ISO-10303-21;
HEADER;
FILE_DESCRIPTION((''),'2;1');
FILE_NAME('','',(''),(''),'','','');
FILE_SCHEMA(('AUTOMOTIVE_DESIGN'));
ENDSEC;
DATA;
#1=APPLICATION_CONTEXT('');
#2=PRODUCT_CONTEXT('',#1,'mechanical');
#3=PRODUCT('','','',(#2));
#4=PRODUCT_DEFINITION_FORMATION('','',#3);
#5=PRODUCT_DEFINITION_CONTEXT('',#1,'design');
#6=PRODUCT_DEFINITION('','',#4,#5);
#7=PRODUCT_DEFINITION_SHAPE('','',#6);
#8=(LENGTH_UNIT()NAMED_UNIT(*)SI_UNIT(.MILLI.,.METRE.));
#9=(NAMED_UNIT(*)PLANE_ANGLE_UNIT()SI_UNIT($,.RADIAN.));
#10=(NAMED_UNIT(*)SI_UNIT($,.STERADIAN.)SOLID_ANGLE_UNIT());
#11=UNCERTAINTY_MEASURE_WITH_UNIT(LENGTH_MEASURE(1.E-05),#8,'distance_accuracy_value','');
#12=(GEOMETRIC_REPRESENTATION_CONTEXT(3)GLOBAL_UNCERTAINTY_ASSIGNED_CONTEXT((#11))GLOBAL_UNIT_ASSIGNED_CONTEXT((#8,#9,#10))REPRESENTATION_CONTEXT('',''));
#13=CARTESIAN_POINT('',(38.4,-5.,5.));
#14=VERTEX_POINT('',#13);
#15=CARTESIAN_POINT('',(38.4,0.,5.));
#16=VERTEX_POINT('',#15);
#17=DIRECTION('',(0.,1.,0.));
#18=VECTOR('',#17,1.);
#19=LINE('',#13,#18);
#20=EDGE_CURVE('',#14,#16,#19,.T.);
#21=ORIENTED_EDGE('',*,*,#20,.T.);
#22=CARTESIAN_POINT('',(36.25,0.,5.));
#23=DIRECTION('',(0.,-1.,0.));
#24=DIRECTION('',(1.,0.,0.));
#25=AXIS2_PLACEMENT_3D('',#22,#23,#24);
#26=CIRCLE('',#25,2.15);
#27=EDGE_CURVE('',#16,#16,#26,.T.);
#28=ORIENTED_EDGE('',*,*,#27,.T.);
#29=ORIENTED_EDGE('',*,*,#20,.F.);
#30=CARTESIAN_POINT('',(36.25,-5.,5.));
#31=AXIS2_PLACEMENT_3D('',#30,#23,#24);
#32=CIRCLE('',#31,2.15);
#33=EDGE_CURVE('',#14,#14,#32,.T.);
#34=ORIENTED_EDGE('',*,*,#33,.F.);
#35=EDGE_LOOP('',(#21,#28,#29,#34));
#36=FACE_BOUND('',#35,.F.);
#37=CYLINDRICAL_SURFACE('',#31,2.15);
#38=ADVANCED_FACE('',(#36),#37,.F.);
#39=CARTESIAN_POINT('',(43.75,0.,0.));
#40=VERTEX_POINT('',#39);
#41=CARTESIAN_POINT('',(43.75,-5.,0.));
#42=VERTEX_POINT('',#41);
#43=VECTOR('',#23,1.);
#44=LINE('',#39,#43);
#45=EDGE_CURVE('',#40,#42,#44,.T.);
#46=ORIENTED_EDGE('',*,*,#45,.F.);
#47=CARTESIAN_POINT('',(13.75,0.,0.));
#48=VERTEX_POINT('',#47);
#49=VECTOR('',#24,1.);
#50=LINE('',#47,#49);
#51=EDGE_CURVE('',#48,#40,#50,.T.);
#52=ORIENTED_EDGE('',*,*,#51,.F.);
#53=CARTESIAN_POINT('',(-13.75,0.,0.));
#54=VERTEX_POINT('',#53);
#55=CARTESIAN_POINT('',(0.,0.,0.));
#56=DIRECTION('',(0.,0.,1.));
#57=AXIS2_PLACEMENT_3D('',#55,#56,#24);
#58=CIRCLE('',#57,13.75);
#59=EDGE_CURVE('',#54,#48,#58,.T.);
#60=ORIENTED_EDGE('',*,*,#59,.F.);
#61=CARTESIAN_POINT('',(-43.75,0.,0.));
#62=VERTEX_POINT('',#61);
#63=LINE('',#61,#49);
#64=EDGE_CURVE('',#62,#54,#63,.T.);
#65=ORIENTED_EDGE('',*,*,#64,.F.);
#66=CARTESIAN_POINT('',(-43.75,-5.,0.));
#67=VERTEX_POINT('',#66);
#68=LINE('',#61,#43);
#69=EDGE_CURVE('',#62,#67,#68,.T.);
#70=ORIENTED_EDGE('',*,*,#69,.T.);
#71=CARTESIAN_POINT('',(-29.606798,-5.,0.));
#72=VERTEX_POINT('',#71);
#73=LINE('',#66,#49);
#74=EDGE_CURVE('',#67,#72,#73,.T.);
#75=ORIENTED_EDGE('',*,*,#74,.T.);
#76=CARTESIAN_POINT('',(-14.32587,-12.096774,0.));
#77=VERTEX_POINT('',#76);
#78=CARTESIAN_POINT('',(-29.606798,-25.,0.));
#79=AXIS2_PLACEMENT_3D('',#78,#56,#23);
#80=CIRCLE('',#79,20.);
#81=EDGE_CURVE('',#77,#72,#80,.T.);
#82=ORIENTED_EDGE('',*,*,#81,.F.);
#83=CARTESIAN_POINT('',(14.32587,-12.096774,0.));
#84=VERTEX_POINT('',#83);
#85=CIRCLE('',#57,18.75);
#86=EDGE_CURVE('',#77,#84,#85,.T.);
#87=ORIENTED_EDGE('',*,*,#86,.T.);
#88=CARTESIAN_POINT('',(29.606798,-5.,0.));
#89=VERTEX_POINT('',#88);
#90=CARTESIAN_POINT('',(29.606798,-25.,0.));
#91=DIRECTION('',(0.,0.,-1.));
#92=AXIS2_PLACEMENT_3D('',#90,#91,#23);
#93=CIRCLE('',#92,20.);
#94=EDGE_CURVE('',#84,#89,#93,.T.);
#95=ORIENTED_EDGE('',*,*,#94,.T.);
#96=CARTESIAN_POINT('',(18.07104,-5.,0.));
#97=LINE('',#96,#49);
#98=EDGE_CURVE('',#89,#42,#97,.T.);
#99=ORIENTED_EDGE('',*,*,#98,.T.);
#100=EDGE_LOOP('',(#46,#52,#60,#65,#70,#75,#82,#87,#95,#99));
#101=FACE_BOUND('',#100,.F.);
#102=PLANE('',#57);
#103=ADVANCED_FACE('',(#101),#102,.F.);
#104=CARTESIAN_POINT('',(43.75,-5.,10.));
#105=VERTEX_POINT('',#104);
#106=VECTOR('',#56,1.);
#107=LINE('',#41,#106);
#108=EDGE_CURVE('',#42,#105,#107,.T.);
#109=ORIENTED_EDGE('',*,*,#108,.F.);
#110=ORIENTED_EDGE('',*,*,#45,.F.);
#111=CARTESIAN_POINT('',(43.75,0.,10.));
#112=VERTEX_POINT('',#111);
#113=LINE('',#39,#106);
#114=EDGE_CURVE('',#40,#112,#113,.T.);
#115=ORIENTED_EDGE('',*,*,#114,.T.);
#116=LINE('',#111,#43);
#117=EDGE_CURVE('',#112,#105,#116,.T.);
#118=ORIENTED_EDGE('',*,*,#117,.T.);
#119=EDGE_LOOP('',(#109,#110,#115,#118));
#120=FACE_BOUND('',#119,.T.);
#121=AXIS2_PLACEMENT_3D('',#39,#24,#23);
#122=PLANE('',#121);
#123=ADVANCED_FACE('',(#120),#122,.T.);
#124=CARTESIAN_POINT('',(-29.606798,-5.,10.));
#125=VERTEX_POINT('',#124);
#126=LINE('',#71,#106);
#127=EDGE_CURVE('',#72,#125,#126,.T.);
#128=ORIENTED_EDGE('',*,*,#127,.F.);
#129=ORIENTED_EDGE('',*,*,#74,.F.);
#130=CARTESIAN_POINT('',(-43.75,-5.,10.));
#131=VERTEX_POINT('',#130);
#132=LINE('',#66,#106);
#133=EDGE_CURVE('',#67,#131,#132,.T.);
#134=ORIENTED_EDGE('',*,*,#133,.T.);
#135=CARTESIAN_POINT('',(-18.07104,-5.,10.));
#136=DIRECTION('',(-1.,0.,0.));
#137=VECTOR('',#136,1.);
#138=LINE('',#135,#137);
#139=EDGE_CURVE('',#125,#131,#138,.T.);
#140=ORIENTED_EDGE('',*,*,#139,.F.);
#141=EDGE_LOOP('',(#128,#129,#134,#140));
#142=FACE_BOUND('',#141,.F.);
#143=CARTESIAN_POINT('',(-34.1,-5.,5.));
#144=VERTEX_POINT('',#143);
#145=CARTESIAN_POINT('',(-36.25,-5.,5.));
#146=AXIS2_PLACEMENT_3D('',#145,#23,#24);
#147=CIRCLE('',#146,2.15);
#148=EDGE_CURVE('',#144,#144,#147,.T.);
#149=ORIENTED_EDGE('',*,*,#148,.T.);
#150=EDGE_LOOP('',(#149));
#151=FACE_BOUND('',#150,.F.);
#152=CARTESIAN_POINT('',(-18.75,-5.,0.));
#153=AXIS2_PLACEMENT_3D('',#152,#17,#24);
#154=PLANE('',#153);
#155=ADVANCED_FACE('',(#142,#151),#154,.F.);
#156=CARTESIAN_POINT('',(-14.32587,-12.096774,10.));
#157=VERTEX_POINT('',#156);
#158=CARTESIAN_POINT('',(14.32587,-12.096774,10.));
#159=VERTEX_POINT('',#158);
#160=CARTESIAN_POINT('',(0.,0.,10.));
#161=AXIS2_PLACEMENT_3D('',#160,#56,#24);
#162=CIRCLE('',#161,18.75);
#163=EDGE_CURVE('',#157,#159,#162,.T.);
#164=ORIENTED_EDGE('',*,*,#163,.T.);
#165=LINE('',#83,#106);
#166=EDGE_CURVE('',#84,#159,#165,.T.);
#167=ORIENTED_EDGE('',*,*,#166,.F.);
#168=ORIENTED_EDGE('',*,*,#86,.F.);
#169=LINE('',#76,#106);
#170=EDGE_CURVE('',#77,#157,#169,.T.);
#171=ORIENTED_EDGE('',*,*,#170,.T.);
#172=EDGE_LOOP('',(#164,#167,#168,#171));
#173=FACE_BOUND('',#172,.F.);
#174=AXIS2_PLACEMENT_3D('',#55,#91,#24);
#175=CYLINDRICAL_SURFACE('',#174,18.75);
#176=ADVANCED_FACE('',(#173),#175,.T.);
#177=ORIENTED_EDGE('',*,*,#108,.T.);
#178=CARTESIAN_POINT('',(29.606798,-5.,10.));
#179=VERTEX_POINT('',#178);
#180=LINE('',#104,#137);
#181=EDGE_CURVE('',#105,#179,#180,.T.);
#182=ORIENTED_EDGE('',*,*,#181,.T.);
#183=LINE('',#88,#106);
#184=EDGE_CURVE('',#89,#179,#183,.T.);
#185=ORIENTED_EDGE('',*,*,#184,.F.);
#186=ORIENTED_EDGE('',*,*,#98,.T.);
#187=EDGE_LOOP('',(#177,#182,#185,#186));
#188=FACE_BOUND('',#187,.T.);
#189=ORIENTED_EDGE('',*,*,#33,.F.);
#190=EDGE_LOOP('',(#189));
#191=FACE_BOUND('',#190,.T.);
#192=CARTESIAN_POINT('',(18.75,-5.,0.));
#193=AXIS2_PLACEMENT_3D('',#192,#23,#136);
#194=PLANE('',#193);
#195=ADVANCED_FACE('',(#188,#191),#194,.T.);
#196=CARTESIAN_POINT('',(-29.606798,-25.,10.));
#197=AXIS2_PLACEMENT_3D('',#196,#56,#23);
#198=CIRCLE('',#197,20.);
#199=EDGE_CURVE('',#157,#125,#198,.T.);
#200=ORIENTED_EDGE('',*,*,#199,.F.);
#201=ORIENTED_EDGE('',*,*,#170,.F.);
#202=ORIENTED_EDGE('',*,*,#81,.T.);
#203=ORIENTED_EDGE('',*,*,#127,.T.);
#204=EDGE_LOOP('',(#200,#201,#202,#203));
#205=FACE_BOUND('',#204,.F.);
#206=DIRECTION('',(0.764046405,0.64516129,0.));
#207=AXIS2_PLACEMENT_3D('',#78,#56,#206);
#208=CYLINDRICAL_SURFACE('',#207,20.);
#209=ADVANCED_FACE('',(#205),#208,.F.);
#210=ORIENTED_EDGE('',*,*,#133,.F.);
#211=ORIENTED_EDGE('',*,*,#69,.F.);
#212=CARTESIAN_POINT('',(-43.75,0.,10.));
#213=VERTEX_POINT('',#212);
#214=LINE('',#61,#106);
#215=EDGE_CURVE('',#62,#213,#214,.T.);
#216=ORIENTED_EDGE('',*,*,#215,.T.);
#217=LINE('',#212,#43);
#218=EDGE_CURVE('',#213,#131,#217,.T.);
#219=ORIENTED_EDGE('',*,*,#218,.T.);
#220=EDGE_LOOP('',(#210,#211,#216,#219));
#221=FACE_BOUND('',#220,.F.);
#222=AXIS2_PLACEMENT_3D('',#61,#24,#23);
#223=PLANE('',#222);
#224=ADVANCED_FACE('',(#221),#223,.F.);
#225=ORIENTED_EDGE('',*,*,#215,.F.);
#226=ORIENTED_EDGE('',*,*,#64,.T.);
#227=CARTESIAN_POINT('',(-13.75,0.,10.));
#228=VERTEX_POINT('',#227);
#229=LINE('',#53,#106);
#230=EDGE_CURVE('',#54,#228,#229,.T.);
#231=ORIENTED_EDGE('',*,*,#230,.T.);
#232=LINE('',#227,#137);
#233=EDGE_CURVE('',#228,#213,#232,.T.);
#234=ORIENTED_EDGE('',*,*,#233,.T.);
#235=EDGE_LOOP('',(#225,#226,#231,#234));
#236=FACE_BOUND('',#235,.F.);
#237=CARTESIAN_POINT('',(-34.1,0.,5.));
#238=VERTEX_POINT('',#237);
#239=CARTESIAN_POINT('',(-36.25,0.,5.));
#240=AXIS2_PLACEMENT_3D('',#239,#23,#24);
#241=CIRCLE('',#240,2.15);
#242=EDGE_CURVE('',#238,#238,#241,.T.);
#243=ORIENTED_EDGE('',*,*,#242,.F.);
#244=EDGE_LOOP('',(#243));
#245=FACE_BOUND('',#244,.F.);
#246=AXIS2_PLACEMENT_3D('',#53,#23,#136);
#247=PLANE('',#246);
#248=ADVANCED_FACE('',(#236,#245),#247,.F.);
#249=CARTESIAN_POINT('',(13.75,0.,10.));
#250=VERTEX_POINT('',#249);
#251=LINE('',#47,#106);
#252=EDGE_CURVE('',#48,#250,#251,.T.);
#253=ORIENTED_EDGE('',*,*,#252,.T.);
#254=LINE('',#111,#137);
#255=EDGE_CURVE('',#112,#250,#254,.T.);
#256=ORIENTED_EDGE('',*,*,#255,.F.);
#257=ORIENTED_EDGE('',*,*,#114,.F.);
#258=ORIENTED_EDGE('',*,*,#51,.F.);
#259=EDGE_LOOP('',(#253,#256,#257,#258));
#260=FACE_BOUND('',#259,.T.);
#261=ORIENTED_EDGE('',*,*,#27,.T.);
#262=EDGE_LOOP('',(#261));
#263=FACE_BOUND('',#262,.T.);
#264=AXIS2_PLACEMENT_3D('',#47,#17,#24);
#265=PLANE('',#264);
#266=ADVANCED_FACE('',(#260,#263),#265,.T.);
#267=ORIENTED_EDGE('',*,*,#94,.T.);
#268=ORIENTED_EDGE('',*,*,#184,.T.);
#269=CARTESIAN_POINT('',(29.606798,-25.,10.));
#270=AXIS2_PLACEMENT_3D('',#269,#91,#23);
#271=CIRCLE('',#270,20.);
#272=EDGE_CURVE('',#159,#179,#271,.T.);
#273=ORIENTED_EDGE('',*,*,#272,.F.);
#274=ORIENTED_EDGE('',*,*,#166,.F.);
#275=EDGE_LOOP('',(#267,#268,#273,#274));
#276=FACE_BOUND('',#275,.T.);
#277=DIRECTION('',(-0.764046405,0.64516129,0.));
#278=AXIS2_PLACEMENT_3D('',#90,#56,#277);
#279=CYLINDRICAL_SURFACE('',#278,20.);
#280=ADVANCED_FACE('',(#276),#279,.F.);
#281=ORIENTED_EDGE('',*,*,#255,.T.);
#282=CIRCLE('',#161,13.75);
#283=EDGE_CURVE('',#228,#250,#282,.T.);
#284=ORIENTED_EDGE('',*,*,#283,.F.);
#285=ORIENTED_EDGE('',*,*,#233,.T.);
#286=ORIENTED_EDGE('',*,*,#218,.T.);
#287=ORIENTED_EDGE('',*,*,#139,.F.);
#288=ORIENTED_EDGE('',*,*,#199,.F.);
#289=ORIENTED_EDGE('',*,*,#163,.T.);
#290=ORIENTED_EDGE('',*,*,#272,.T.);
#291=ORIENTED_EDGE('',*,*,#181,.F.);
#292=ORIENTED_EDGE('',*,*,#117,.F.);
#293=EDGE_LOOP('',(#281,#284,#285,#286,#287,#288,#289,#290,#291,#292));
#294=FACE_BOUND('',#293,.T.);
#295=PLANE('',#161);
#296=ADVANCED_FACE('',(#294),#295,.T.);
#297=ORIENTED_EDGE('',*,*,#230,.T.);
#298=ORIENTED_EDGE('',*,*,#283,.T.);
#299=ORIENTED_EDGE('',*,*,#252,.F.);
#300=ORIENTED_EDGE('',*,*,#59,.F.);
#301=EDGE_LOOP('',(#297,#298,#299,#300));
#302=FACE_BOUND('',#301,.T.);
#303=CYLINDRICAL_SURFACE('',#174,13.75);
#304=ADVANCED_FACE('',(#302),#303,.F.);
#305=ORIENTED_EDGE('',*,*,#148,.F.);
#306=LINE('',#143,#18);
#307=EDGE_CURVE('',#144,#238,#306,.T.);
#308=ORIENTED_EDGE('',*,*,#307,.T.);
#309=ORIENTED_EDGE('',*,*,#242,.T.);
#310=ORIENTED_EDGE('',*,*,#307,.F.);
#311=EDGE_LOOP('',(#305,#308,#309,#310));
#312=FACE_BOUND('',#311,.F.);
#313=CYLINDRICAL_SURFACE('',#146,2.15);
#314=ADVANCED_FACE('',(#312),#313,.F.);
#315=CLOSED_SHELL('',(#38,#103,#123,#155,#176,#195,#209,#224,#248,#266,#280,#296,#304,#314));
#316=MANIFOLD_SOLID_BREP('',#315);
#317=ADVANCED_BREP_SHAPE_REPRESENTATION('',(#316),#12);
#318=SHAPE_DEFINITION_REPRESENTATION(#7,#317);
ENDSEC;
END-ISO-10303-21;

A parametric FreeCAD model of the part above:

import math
import FreeCAD as App
import Part
import Sketcher
from FreeCAD import Vector


def edges_at(feature, points):
    """Names of the edges that pass closest to the given points."""
    edges = feature.Shape.Edges
    near = lambda p: min(range(len(edges)), key=lambda i: edges[i].distToShape(Part.Vertex(*p))[0])
    return sorted({f"Edge{near(p) + 1}" for p in points})

doc = App.newDocument("Part")
params = doc.addObject("Spreadsheet::Sheet", "Params")
for row, (alias, value) in enumerate([
    ("sketch1_height", "5 mm"),
    ("sketch1_radius", "13.75 mm"),
    ("sketch1_width", "30 mm"),
    ("sketch1_radius2", "18.75 mm"),
    ("pad1_length", "10 mm"),
    ("sketch2_diameter", "4.3 mm"),
    ("pocket1_length", "5 mm"),
    ("fillet_radius", "20 mm"),
], start=1):
    params.set(f"A{row}", alias)
    params.set(f"B{row}", "=" + value)
    params.setAlias(f"B{row}", alias)

body = doc.addObject("PartDesign::Body", "Body")

sketch1 = doc.addObject("Sketcher::SketchObject", "Sketch")
body.addObject(sketch1)
sketch1.AttachmentSupport = (doc.XY_Plane, [""])
sketch1.MapMode = "FlatFace"
sketch1.addGeometry([
    Part.ArcOfCircle(Part.Circle(Vector(0, 0, 0), Vector(0, 0, 1), 19), math.radians(-165), math.radians(-15)),
    Part.LineSegment(Vector(18, -5, 0), Vector(44, -5, 0)),
    Part.LineSegment(Vector(44, -5, 0), Vector(44, 0, 0)),
    Part.LineSegment(Vector(44, 0, 0), Vector(14, 0, 0)),
    Part.ArcOfCircle(Part.Circle(Vector(0, 0, 0), Vector(0, 0, 1), 14), math.radians(180), math.radians(360)),
    Part.LineSegment(Vector(-14, 0, 0), Vector(-44, 0, 0)),
    Part.LineSegment(Vector(-44, 0, 0), Vector(-44, -5, 0)),
    Part.LineSegment(Vector(-44, -5, 0), Vector(-18, -5, 0)),
], False)
sketch1.addConstraint([
    Sketcher.Constraint("Coincident", 0, 2, 1, 1),
    Sketcher.Constraint("Coincident", 1, 2, 2, 1),
    Sketcher.Constraint("Coincident", 2, 2, 3, 1),
    Sketcher.Constraint("Coincident", 3, 2, 4, 2),
    Sketcher.Constraint("Coincident", 4, 1, 5, 1),
    Sketcher.Constraint("Coincident", 5, 2, 6, 1),
    Sketcher.Constraint("Coincident", 6, 2, 7, 1),
    Sketcher.Constraint("Coincident", 7, 2, 0, 1),
    Sketcher.Constraint("Horizontal", 1),
    Sketcher.Constraint("Vertical", 2),
    Sketcher.Constraint("Horizontal", 3),
    Sketcher.Constraint("Horizontal", 5),
    Sketcher.Constraint("Vertical", 6),
    Sketcher.Constraint("Horizontal", 7),
    Sketcher.Constraint("Coincident", 0, 3, -1, 1),
    Sketcher.Constraint("Coincident", 4, 3, -1, 1),
    Sketcher.Constraint("Symmetric", 2, 2, 5, 2, -1, 1),
    Sketcher.Constraint("PointOnObject", 2, 2, -1),
    Sketcher.Constraint("Horizontal", 1, 2, 6, 2),
    Sketcher.Constraint("DistanceY", 2, 1, 2, 2, 5.0),
    Sketcher.Constraint("Radius", 4, 13.75),
    Sketcher.Constraint("DistanceX", 3, 2, 3, 1, 30.0),
    Sketcher.Constraint("Radius", 0, 18.75),
])
sketch1.setExpression("Constraints[19]", "Params.sketch1_height")
sketch1.setExpression("Constraints[20]", "Params.sketch1_radius")
sketch1.setExpression("Constraints[21]", "Params.sketch1_width")
sketch1.setExpression("Constraints[22]", "Params.sketch1_radius2")
pad1 = doc.addObject("PartDesign::Pad", "Pad")
body.addObject(pad1)
pad1.Profile = sketch1
pad1.setExpression("Length", "Params.pad1_length")

sketch2 = doc.addObject("Sketcher::SketchObject", "Sketch001")
body.addObject(sketch2)
sketch2.AttachmentSupport = (doc.XZ_Plane, [""])
sketch2.MapMode = "FlatFace"
sketch2.AttachmentOffset = App.Placement(Vector(0, 0, 5), App.Rotation())
sketch2.addGeometry([
    Part.Circle(Vector(-36.2, 5, 0), Vector(0, 0, 1), 2.1),
    Part.Circle(Vector(36.2, 5, 0), Vector(0, 0, 1), 2.1),
], False)
sketch2.addConstraint([
    Sketcher.Constraint("Equal", 0, 1),
    Sketcher.Constraint("Symmetric", 0, 3, 1, 3, -2),
    Sketcher.Constraint("Diameter", 0, 4.3),
    Sketcher.Constraint("DistanceY", -1, 1, 0, 3, 5.0),
    Sketcher.Constraint("DistanceX", 0, 3, 1, 3, 72.5),
])
sketch2.setExpression("Constraints[2]", "Params.sketch2_diameter")
pocket1 = doc.addObject("PartDesign::Pocket", "Pocket")
body.addObject(pocket1)
pocket1.Profile = sketch2
pocket1.setExpression("Length", "Params.pocket1_length")
doc.recompute()

fillet = doc.addObject("PartDesign::Fillet", "Fillet")
body.addObject(fillet)
fillet.Base = (pocket1, edges_at(pocket1, [(-18.071, -5, 5), (18.071, -5, 5)]))
fillet.setExpression("Radius", "Params.fillet_radius")

doc.recompute()
